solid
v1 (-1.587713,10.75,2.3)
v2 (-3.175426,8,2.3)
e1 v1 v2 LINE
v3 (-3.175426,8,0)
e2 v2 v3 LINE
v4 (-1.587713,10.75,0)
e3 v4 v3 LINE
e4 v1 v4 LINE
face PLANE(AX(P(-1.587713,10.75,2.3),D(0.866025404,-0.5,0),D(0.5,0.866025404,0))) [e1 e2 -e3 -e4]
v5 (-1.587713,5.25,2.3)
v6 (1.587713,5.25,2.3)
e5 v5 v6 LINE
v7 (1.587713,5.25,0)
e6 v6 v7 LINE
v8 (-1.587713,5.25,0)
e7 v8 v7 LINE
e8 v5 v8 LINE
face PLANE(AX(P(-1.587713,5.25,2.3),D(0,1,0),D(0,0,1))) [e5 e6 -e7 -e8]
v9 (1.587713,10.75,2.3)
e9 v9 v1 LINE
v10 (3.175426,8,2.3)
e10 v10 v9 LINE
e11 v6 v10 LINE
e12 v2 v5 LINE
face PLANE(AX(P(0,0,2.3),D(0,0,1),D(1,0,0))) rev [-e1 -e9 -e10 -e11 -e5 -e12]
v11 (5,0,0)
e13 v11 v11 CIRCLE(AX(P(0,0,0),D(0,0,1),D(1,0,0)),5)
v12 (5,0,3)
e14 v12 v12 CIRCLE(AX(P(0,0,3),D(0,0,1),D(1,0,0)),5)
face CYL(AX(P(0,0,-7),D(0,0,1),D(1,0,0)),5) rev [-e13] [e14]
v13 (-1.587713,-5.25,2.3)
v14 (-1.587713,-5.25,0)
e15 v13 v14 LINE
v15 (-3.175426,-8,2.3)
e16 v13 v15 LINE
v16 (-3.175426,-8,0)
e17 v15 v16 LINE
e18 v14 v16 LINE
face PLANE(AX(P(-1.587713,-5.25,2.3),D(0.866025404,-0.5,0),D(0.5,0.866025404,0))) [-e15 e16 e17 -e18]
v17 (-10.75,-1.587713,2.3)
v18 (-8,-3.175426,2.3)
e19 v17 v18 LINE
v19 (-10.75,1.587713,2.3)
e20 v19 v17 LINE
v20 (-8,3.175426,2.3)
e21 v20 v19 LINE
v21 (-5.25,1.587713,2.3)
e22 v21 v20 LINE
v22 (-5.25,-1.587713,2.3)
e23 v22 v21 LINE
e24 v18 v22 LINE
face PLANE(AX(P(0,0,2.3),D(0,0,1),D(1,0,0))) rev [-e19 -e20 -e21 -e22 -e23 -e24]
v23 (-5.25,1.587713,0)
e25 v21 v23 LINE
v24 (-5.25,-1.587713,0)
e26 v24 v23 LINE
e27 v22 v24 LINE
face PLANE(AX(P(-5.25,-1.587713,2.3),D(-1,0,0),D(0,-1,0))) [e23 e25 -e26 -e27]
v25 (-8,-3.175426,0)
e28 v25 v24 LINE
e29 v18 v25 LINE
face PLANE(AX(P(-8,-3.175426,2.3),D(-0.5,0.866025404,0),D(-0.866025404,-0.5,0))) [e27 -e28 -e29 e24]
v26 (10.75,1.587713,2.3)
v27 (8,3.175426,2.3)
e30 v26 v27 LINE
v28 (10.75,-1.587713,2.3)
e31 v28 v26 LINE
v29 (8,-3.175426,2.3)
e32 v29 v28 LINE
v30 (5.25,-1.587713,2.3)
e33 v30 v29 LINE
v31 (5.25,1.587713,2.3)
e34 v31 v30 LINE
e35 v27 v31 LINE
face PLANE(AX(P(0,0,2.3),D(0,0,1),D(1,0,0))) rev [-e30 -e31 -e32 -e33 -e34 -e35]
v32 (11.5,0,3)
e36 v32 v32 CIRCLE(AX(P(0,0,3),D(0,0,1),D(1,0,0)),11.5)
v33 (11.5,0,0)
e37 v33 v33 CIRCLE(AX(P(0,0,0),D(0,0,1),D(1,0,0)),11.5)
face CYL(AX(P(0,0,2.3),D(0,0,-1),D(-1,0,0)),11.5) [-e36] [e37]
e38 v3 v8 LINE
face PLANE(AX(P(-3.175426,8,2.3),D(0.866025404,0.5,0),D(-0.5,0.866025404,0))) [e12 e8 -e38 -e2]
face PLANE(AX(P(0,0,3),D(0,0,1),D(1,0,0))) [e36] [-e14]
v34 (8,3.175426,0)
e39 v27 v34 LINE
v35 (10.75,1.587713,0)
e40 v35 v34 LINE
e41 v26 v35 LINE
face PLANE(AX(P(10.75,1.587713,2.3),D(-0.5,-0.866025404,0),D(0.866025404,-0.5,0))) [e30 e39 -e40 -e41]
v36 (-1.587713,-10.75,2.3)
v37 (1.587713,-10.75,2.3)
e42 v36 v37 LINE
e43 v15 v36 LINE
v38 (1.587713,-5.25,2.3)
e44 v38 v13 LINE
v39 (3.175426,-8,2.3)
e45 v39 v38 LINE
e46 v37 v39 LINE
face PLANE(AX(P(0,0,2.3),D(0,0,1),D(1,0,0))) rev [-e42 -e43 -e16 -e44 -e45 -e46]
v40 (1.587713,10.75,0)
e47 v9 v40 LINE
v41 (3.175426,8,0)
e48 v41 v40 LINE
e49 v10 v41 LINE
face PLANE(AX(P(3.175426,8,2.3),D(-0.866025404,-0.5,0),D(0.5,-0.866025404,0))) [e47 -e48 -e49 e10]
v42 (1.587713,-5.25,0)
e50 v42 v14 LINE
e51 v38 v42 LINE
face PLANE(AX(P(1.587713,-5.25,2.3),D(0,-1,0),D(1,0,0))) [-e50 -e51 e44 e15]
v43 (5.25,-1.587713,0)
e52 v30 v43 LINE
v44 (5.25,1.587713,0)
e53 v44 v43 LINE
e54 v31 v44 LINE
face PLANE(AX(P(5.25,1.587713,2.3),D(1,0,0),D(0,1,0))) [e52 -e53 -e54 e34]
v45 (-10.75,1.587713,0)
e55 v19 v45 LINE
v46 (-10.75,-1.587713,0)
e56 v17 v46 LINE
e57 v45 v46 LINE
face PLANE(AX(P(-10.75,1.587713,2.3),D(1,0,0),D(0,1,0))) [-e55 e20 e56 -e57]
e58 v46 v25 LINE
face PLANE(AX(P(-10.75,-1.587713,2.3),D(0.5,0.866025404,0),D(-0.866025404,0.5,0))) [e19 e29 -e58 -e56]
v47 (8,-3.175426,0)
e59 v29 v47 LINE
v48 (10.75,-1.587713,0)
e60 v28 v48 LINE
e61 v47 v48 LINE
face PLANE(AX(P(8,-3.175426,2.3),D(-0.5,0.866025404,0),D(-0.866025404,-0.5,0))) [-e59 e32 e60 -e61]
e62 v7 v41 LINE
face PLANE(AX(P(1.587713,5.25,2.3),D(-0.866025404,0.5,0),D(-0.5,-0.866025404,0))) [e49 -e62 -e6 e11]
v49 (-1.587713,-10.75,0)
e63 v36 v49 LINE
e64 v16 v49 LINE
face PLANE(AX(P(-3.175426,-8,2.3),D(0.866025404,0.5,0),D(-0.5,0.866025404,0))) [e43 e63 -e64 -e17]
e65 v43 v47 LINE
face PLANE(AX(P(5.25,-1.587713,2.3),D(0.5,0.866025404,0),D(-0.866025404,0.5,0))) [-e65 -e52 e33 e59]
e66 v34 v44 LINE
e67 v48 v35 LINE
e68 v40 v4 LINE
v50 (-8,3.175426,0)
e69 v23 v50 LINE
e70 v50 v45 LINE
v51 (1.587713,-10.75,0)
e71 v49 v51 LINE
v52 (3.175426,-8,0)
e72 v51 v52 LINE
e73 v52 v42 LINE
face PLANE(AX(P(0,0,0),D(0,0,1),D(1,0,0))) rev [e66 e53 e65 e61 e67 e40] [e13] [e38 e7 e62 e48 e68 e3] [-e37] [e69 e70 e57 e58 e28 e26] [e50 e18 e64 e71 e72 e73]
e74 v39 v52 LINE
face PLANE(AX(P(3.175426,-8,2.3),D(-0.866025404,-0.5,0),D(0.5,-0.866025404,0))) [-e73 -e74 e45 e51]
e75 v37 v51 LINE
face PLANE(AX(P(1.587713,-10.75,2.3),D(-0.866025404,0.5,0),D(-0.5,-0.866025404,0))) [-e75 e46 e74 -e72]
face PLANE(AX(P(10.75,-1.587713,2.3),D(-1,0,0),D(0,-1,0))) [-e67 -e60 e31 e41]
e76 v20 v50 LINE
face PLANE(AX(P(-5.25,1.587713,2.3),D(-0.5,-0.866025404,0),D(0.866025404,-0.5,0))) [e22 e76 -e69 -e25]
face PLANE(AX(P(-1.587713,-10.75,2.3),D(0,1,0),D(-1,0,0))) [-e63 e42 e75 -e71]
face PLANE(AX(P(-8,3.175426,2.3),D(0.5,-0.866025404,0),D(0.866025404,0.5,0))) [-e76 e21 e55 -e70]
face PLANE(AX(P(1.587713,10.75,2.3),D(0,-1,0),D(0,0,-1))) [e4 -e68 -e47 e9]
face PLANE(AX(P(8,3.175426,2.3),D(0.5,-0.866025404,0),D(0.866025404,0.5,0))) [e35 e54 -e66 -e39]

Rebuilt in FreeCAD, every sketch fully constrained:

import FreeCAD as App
import Part
import Sketcher

V = App.Vector
Q = App.Units.Quantity


def add_polygon(sketch, points):
    """Adds a closed chain of lines whose ends are joined by coincident constraints."""
    first, n = sketch.GeometryCount, len(points)
    for a, b in zip(points, points[1:] + points[:1]):
        sketch.addGeometry(Part.LineSegment(App.Vector(*a, 0), App.Vector(*b, 0)), False)
    for i in range(n):
        sketch.addConstraint(Sketcher.Constraint("Coincident", first + i, 2, first + (i + 1) % n, 1))

doc = App.newDocument("Part")
body = doc.addObject("PartDesign::Body", "Body")

sketch1 = body.newObject("Sketcher::SketchObject", "Sketch")
sketch1.AttachmentSupport = (doc.getObject("XY_Plane"), [""])
sketch1.MapMode = "FlatFace"
sketch1.addGeometry(Part.Circle(V(0, 0, 0), V(0, 0, 1), 11.5), False)
add_polygon(sketch1, [(-1.6, -10.8), (-3.2, -8), (-1.6, -5.2), (1.6, -5.2), (3.2, -8), (1.6, -10.8)])
add_polygon(sketch1, [(-10.8, 1.6), (-8, 3.2), (-5.2, 1.6), (-5.2, -1.6), (-8, -3.2), (-10.8, -1.6)])
add_polygon(sketch1, [(10.8, -1.6), (8, -3.2), (5.2, -1.6), (5.2, 1.6), (8, 3.2), (10.8, 1.6)])
add_polygon(sketch1, [(1.6, 10.8), (3.2, 8), (1.6, 5.2), (-1.6, 5.2), (-3.2, 8), (-1.6, 10.8)])
sketch1.addConstraint([
    Sketcher.Constraint("Horizontal", 3),
    Sketcher.Constraint("Horizontal", 6),
    Sketcher.Constraint("Vertical", 9),
    Sketcher.Constraint("Vertical", 12),
    Sketcher.Constraint("Vertical", 15),
    Sketcher.Constraint("Vertical", 18),
    Sketcher.Constraint("Horizontal", 21),
    Sketcher.Constraint("Horizontal", 24),
    Sketcher.Constraint("Coincident", 0, 3, -1, 1),
    Sketcher.Constraint("Symmetric", 7, 2, 13, 2, -1, 1),
    Sketcher.Constraint("Symmetric", 8, 2, 14, 2, -1, 1),
    Sketcher.Constraint("Symmetric", 10, 2, 16, 2, -1, 1),
    Sketcher.Constraint("Symmetric", 11, 2, 17, 2, -1, 1),
    Sketcher.Constraint("Symmetric", 1, 2, 19, 2, -1, 1),
    Sketcher.Constraint("Symmetric", 2, 2, 20, 2, -1, 1),
    Sketcher.Constraint("Symmetric", 4, 2, 22, 2, -1, 1),
    Sketcher.Constraint("Symmetric", 5, 2, 23, 2, -1, 1),
    Sketcher.Constraint("Symmetric", 1, 2, 4, 2, -2),
    Sketcher.Constraint("Symmetric", 10, 2, 13, 2, -2),
    Sketcher.Constraint("Parallel", 1, 4),
    Sketcher.Constraint("Parallel", 2, 5),
    Sketcher.Constraint("Perpendicular", 4, 7),
    Sketcher.Constraint("Perpendicular", 5, 8),
    Sketcher.Constraint("Parallel", 7, 10),
    Sketcher.Constraint("Parallel", 8, 11),
    Sketcher.Constraint("Parallel", 10, 13),
    Sketcher.Constraint("Parallel", 13, 16),
    Sketcher.Constraint("Perpendicular", 16, 19),
    Sketcher.Constraint("Parallel", 19, 22),
    Sketcher.Constraint("Horizontal", 9, 2, 11, 2),
    Sketcher.Constraint("Horizontal", 8, 2, 12, 2),
    Sketcher.Constraint("Vertical", 3, 2, 5, 2),
    Sketcher.Constraint("Equal", 24, 9),
    Sketcher.Constraint("Equal", 5, 7),
    Sketcher.Constraint("Diameter", 0, Q("23 mm")),
    Sketcher.Constraint("Angle", 1, Q("120 deg")),
    Sketcher.Constraint("DistanceY", 1, 2, -1, 1, Q("8 mm")),
    Sketcher.Constraint("DistanceX", 7, 2, -1, 1, Q("8 mm")),
    Sketcher.Constraint("DistanceY", 5, 2, 3, 2, Q("5.5 mm")),
    Sketcher.Constraint("DistanceX", 3, 1, 3, 2, Q("3.175426 mm")),
])
pad1 = body.newObject("PartDesign::Pad", "Pad")
pad1.Profile = sketch1
pad1.Length = 2.3

sketch2 = body.newObject("Sketcher::SketchObject", "Sketch001")
sketch2.AttachmentSupport = (doc.getObject("XY_Plane"), [""])
sketch2.MapMode = "FlatFace"
sketch2.AttachmentOffset = App.Placement(V(0, 0, 2.3), App.Rotation())
sketch2.addGeometry(Part.Circle(V(0, 0, 0), V(0, 0, 1), 12), False)
sketch2.addConstraint([
    Sketcher.Constraint("Coincident", 0, 3, -1, 1),
    Sketcher.Constraint("Diameter", 0, Q("23 mm")),
])
pad2 = body.newObject("PartDesign::Pad", "Pad001")
pad2.Profile = sketch2
pad2.Length = 0.7

sketch3 = body.newObject("Sketcher::SketchObject", "Sketch002")
sketch3.AttachmentSupport = (doc.getObject("XY_Plane"), [""])
sketch3.MapMode = "FlatFace"
sketch3.AttachmentOffset = App.Placement(V(0, 0, 3), App.Rotation())
sketch3.addGeometry(Part.Circle(V(0, 0, 0), V(0, 0, 1), 5), False)
sketch3.addConstraint([
    Sketcher.Constraint("Coincident", 0, 3, -1, 1),
    Sketcher.Constraint("Diameter", 0, Q("10 mm")),
])
pocket1 = body.newObject("PartDesign::Pocket", "Pocket")
pocket1.Profile = sketch3
pocket1.Length = 10

doc.recompute()
